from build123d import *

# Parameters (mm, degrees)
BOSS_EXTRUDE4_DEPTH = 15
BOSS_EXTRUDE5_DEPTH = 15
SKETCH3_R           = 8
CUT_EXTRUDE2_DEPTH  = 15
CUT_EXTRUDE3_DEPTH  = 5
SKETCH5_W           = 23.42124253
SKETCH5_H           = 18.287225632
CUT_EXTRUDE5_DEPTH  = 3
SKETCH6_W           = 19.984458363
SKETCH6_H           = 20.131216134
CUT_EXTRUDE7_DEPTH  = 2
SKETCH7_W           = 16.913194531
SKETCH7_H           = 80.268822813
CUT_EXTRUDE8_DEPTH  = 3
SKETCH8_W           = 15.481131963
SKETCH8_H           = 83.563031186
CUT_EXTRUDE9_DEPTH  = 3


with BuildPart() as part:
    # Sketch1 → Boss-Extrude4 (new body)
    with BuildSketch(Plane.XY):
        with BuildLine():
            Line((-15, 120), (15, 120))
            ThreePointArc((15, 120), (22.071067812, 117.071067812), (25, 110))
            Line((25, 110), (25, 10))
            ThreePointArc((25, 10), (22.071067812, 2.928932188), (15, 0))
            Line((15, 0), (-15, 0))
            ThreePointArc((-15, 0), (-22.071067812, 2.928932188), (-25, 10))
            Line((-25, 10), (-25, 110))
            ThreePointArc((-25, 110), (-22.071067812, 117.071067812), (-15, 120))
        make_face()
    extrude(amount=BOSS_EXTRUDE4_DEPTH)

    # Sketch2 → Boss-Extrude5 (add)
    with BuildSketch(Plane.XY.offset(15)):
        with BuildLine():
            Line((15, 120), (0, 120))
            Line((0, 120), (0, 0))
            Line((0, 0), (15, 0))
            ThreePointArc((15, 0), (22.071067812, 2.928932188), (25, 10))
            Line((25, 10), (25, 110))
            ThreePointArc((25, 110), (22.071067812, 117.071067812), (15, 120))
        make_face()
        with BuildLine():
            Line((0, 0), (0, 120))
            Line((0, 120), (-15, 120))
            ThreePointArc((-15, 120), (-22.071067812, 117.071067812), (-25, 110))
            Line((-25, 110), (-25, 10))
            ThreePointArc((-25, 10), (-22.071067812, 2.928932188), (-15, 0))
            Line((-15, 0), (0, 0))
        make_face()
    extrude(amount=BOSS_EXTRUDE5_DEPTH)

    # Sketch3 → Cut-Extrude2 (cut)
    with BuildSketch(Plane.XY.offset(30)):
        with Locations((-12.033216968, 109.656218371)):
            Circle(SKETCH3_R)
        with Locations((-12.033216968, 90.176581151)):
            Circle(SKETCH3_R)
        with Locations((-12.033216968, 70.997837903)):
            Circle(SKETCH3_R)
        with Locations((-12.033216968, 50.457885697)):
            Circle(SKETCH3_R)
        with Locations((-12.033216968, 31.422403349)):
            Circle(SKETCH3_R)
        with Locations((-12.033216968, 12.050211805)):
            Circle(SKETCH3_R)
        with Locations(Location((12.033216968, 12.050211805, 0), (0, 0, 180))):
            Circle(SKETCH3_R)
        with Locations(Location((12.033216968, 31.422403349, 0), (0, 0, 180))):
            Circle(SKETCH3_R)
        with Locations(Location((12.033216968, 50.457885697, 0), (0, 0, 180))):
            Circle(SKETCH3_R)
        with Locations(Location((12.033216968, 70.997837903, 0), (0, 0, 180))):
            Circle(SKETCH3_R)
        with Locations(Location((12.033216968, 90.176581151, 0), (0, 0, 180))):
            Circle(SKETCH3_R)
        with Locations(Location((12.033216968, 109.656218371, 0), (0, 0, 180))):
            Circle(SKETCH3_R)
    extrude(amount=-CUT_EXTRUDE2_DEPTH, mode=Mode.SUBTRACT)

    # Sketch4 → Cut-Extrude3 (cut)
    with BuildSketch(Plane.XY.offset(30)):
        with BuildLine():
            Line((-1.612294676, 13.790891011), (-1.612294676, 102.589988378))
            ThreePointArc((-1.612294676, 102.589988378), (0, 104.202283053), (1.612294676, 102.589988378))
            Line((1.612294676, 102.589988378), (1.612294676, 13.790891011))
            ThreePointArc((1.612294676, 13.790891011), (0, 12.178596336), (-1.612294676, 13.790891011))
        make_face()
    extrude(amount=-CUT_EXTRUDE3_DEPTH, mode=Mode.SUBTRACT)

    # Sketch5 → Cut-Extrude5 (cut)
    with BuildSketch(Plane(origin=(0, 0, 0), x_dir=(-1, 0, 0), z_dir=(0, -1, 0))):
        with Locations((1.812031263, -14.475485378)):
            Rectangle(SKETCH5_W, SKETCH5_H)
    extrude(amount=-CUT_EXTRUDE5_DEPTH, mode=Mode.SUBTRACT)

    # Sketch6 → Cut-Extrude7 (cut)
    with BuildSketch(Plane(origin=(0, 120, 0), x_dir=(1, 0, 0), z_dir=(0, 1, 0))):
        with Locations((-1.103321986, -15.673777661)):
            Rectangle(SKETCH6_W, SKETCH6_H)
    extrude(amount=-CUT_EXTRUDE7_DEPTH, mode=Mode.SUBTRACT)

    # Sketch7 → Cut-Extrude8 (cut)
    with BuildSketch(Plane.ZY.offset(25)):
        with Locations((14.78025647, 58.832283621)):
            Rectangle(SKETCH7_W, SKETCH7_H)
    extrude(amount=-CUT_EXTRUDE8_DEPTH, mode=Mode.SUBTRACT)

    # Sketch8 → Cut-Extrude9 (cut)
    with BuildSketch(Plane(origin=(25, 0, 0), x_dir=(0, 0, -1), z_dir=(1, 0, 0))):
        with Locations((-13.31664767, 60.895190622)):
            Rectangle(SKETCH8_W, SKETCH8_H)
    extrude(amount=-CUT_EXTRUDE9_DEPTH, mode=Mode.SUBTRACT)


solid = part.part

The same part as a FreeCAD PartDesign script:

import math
import FreeCAD as App
import Part
import Sketcher
from FreeCAD import Vector
Q = App.Units.Quantity


def add_polygon(sketch, points):
    """Adds a closed chain of lines whose ends are joined by coincident constraints."""
    first, n = sketch.GeometryCount, len(points)
    for a, b in zip(points, points[1:] + points[:1]):
        sketch.addGeometry(Part.LineSegment(App.Vector(*a, 0), App.Vector(*b, 0)), False)
    for i in range(n):
        sketch.addConstraint(Sketcher.Constraint("Coincident", first + i, 2, first + (i + 1) % n, 1))

doc = App.newDocument("Part")
params = doc.addObject("Spreadsheet::Sheet", "Params")
for row, (alias, value) in enumerate([
    ("sketch1_radius", "10 mm"),
    ("sketch1_width", "30 mm"),
    ("sketch1_height", "100 mm"),
    ("pad1_length", "15 mm"),
    ("sketch2_radius", "10 mm"),
    ("sketch2_width", "30 mm"),
    ("sketch2_height", "100 mm"),
    ("pad2_length", "15 mm"),
    ("sketch3_diameter", "16 mm"),
    ("pocket1_length", "15 mm"),
    ("pocket2_length", "5 mm"),
    ("pocket3_length", "3 mm"),
    ("pocket4_length", "2 mm"),
    ("pocket5_length", "3 mm"),
    ("pocket6_length", "3 mm"),
], start=1):
    params.set(f"A{row}", alias)
    params.set(f"B{row}", "=" + value)
    params.setAlias(f"B{row}", alias)

body = doc.addObject("PartDesign::Body", "Body")

sketch1 = doc.addObject("Sketcher::SketchObject", "Sketch")
body.addObject(sketch1)
sketch1.AttachmentSupport = (doc.XY_Plane, [""])
sketch1.MapMode = "FlatFace"
sketch1.addGeometry(Part.LineSegment(Vector(15, 120, 0), Vector(-15, 120, 0)), False)
sketch1.addGeometry(Part.ArcOfCircle(Part.Circle(Vector(-15, 110, 0), Vector(0, 0, 1), 10), math.radians(90), math.radians(180)), False)
sketch1.addGeometry(Part.LineSegment(Vector(-25, 110, 0), Vector(-25, 10, 0)), False)
sketch1.addGeometry(Part.ArcOfCircle(Part.Circle(Vector(-15, 10, 0), Vector(0, 0, 1), 10), math.radians(180), math.radians(270)), False)
sketch1.addGeometry(Part.LineSegment(Vector(-15, 0, 0), Vector(15, 0, 0)), False)
sketch1.addGeometry(Part.ArcOfCircle(Part.Circle(Vector(15, 10, 0), Vector(0, 0, 1), 10), math.radians(-90), math.radians(0)), False)
sketch1.addGeometry(Part.LineSegment(Vector(25, 10, 0), Vector(25, 110, 0)), False)
sketch1.addGeometry(Part.ArcOfCircle(Part.Circle(Vector(15, 110, 0), Vector(0, 0, 1), 10), math.radians(0), math.radians(90)), False)
sketch1.addConstraint(Sketcher.Constraint("Tangent", 0, 2, 1, 1))
sketch1.addConstraint(Sketcher.Constraint("Tangent", 1, 2, 2, 1))
sketch1.addConstraint(Sketcher.Constraint("Tangent", 2, 2, 3, 1))
sketch1.addConstraint(Sketcher.Constraint("Tangent", 3, 2, 4, 1))
sketch1.addConstraint(Sketcher.Constraint("Tangent", 4, 2, 5, 1))
sketch1.addConstraint(Sketcher.Constraint("Tangent", 5, 2, 6, 1))
sketch1.addConstraint(Sketcher.Constraint("Tangent", 6, 2, 7, 1))
sketch1.addConstraint(Sketcher.Constraint("Tangent", 7, 2, 0, 1))
sketch1.addConstraint(Sketcher.Constraint("Horizontal", 0))
sketch1.addConstraint(Sketcher.Constraint("Vertical", 2))
sketch1.addConstraint(Sketcher.Constraint("Horizontal", 4))
sketch1.addConstraint(Sketcher.Constraint("Vertical", 6))
sketch1.addConstraint(Sketcher.Constraint("Equal", 1, 3))
sketch1.addConstraint(Sketcher.Constraint("Equal", 3, 5))
sketch1.addConstraint(Sketcher.Constraint("Equal", 5, 7))
sketch1.addConstraint(Sketcher.Constraint("Symmetric", 3, 2, 4, 2, -1, 1))
sketch1.addConstraint(Sketcher.Constraint("Radius", 1, Q("10 mm")))
sketch1.addConstraint(Sketcher.Constraint("DistanceX", 0, 2, 0, 1, Q("30 mm")))
sketch1.addConstraint(Sketcher.Constraint("DistanceY", 2, 2, 2, 1, Q("100 mm")))
sketch1.setExpression("Constraints[16]", "Params.sketch1_radius")
sketch1.setExpression("Constraints[17]", "Params.sketch1_width")
sketch1.setExpression("Constraints[18]", "Params.sketch1_height")
pad1 = doc.addObject("PartDesign::Pad", "Pad")
body.addObject(pad1)
pad1.Profile = sketch1
pad1.setExpression("Length", "Params.pad1_length")

sketch2 = doc.addObject("Sketcher::SketchObject", "Sketch001")
body.addObject(sketch2)
sketch2.AttachmentSupport = (doc.XY_Plane, [""])
sketch2.MapMode = "FlatFace"
sketch2.AttachmentOffset = App.Placement(Vector(0, 0, 15), App.Rotation())
sketch2.addGeometry(Part.LineSegment(Vector(15, 120, 0), Vector(-15, 120, 0)), False)
sketch2.addGeometry(Part.ArcOfCircle(Part.Circle(Vector(-15, 110, 0), Vector(0, 0, 1), 10), math.radians(90), math.radians(180)), False)
sketch2.addGeometry(Part.LineSegment(Vector(-25, 110, 0), Vector(-25, 10, 0)), False)
sketch2.addGeometry(Part.ArcOfCircle(Part.Circle(Vector(-15, 10, 0), Vector(0, 0, 1), 10), math.radians(180), math.radians(270)), False)
sketch2.addGeometry(Part.LineSegment(Vector(-15, 0, 0), Vector(15, 0, 0)), False)
sketch2.addGeometry(Part.ArcOfCircle(Part.Circle(Vector(15, 10, 0), Vector(0, 0, 1), 10), math.radians(-90), math.radians(0)), False)
sketch2.addGeometry(Part.LineSegment(Vector(25, 10, 0), Vector(25, 110, 0)), False)
sketch2.addGeometry(Part.ArcOfCircle(Part.Circle(Vector(15, 110, 0), Vector(0, 0, 1), 10), math.radians(0), math.radians(90)), False)
sketch2.addConstraint(Sketcher.Constraint("Tangent", 0, 2, 1, 1))
sketch2.addConstraint(Sketcher.Constraint("Tangent", 1, 2, 2, 1))
sketch2.addConstraint(Sketcher.Constraint("Tangent", 2, 2, 3, 1))
sketch2.addConstraint(Sketcher.Constraint("Tangent", 3, 2, 4, 1))
sketch2.addConstraint(Sketcher.Constraint("Tangent", 4, 2, 5, 1))
sketch2.addConstraint(Sketcher.Constraint("Tangent", 5, 2, 6, 1))
sketch2.addConstraint(Sketcher.Constraint("Tangent", 6, 2, 7, 1))
sketch2.addConstraint(Sketcher.Constraint("Tangent", 7, 2, 0, 1))
sketch2.addConstraint(Sketcher.Constraint("Horizontal", 0))
sketch2.addConstraint(Sketcher.Constraint("Vertical", 2))
sketch2.addConstraint(Sketcher.Constraint("Horizontal", 4))
sketch2.addConstraint(Sketcher.Constraint("Vertical", 6))
sketch2.addConstraint(Sketcher.Constraint("Equal", 1, 3))
sketch2.addConstraint(Sketcher.Constraint("Equal", 3, 5))
sketch2.addConstraint(Sketcher.Constraint("Equal", 5, 7))
sketch2.addConstraint(Sketcher.Constraint("Symmetric", 3, 2, 4, 2, -1, 1))
sketch2.addConstraint(Sketcher.Constraint("Radius", 1, Q("10 mm")))
sketch2.addConstraint(Sketcher.Constraint("DistanceX", 0, 2, 0, 1, Q("30 mm")))
sketch2.addConstraint(Sketcher.Constraint("DistanceY", 2, 2, 2, 1, Q("100 mm")))
sketch2.setExpression("Constraints[16]", "Params.sketch2_radius")
sketch2.setExpression("Constraints[17]", "Params.sketch2_width")
sketch2.setExpression("Constraints[18]", "Params.sketch2_height")
pad2 = doc.addObject("PartDesign::Pad", "Pad001")
body.addObject(pad2)
pad2.Profile = sketch2
pad2.setExpression("Length", "Params.pad2_length")

sketch3 = doc.addObject("Sketcher::SketchObject", "Sketch002")
body.addObject(sketch3)
sketch3.AttachmentSupport = (doc.XY_Plane, [""])
sketch3.MapMode = "FlatFace"
sketch3.AttachmentOffset = App.Placement(Vector(0, 0, 30), App.Rotation())
sketch3.addGeometry(Part.Circle(Vector(-12, 110, 0), Vector(0, 0, 1), 8), False)
sketch3.addGeometry(Part.Circle(Vector(-12, 90, 0), Vector(0, 0, 1), 8), False)
sketch3.addGeometry(Part.Circle(Vector(-12, 71, 0), Vector(0, 0, 1), 8), False)
sketch3.addGeometry(Part.Circle(Vector(-12, 50, 0), Vector(0, 0, 1), 8), False)
sketch3.addGeometry(Part.Circle(Vector(-12, 31, 0), Vector(0, 0, 1), 8), False)
sketch3.addGeometry(Part.Circle(Vector(-12, 12, 0), Vector(0, 0, 1), 8), False)
sketch3.addGeometry(Part.Circle(Vector(12, 12, 0), Vector(0, 0, 1), 8), False)
sketch3.addGeometry(Part.Circle(Vector(12, 31, 0), Vector(0, 0, 1), 8), False)
sketch3.addGeometry(Part.Circle(Vector(12, 50, 0), Vector(0, 0, 1), 8), False)
sketch3.addGeometry(Part.Circle(Vector(12, 71, 0), Vector(0, 0, 1), 8), False)
sketch3.addGeometry(Part.Circle(Vector(12, 90, 0), Vector(0, 0, 1), 8), False)
sketch3.addGeometry(Part.Circle(Vector(12, 110, 0), Vector(0, 0, 1), 8), False)
sketch3.addConstraint(Sketcher.Constraint("Equal", 0, 1))
sketch3.addConstraint(Sketcher.Constraint("Equal", 1, 2))
sketch3.addConstraint(Sketcher.Constraint("Equal", 2, 3))
sketch3.addConstraint(Sketcher.Constraint("Equal", 3, 4))
sketch3.addConstraint(Sketcher.Constraint("Equal", 4, 5))
sketch3.addConstraint(Sketcher.Constraint("Equal", 5, 6))
sketch3.addConstraint(Sketcher.Constraint("Equal", 6, 7))
sketch3.addConstraint(Sketcher.Constraint("Equal", 7, 8))
sketch3.addConstraint(Sketcher.Constraint("Equal", 8, 9))
sketch3.addConstraint(Sketcher.Constraint("Equal", 9, 10))
sketch3.addConstraint(Sketcher.Constraint("Equal", 10, 11))
sketch3.addConstraint(Sketcher.Constraint("Symmetric", 5, 3, 6, 3, -2))
sketch3.addConstraint(Sketcher.Constraint("Symmetric", 4, 3, 7, 3, -2))
sketch3.addConstraint(Sketcher.Constraint("Symmetric", 3, 3, 8, 3, -2))
sketch3.addConstraint(Sketcher.Constraint("Symmetric", 2, 3, 9, 3, -2))
sketch3.addConstraint(Sketcher.Constraint("Symmetric", 1, 3, 10, 3, -2))
sketch3.addConstraint(Sketcher.Constraint("Symmetric", 0, 3, 11, 3, -2))
sketch3.addConstraint(Sketcher.Constraint("Vertical", 0, 3, 1, 3))
sketch3.addConstraint(Sketcher.Constraint("Vertical", 1, 3, 2, 3))
sketch3.addConstraint(Sketcher.Constraint("Vertical", 2, 3, 3, 3))
sketch3.addConstraint(Sketcher.Constraint("Vertical", 3, 3, 4, 3))
sketch3.addConstraint(Sketcher.Constraint("Vertical", 4, 3, 5, 3))
sketch3.addConstraint(Sketcher.Constraint("Diameter", 0, Q("16 mm")))
sketch3.addConstraint(Sketcher.Constraint("DistanceY", -1, 1, 0, 3, Q("109.656218 mm")))
sketch3.addConstraint(Sketcher.Constraint("DistanceY", -1, 1, 1, 3, Q("90.176581 mm")))
sketch3.addConstraint(Sketcher.Constraint("DistanceY", -1, 1, 5, 3, Q("12.050212 mm")))
sketch3.addConstraint(Sketcher.Constraint("DistanceY", 2, 3, 0, 3, Q("38.65838 mm")))
sketch3.addConstraint(Sketcher.Constraint("DistanceY", 5, 3, 4, 3, Q("19.372192 mm")))
sketch3.addConstraint(Sketcher.Constraint("DistanceX", 0, 3, -1, 1, Q("12.033217 mm")))
sketch3.addConstraint(Sketcher.Constraint("DistanceY", -1, 1, 3, 3, Q("50.457886 mm")))
sketch3.setExpression("Constraints[22]", "Params.sketch3_diameter")
pocket1 = doc.addObject("PartDesign::Pocket", "Pocket")
body.addObject(pocket1)
pocket1.Profile = sketch3
pocket1.setExpression("Length", "Params.pocket1_length")

sketch4 = doc.addObject("Sketcher::SketchObject", "Sketch003")
body.addObject(sketch4)
sketch4.AttachmentSupport = (doc.XY_Plane, [""])
sketch4.MapMode = "FlatFace"
sketch4.AttachmentOffset = App.Placement(Vector(0, 0, 30), App.Rotation())
sketch4.addGeometry(Part.LineSegment(Vector(-1.6, 102.6, 0), Vector(-1.6, 13.8, 0)), False)
sketch4.addGeometry(Part.ArcOfCircle(Part.Circle(Vector(0, 13.8, 0), Vector(0, 0, 1), 1.6), math.radians(-180), math.radians(0)), False)
sketch4.addGeometry(Part.LineSegment(Vector(1.6, 13.8, 0), Vector(1.6, 102.6, 0)), False)
sketch4.addGeometry(Part.ArcOfCircle(Part.Circle(Vector(0, 102.6, 0), Vector(0, 0, 1), 1.6), math.radians(0), math.radians(180)), False)
sketch4.addConstraint(Sketcher.Constraint("Tangent", 0, 2, 1, 1))
sketch4.addConstraint(Sketcher.Constraint("Tangent", 1, 2, 2, 1))
sketch4.addConstraint(Sketcher.Constraint("Tangent", 2, 2, 3, 1))
sketch4.addConstraint(Sketcher.Constraint("Tangent", 3, 2, 0, 1))
sketch4.addConstraint(Sketcher.Constraint("Vertical", 0))
sketch4.addConstraint(Sketcher.Constraint("Vertical", 2))
sketch4.addConstraint(Sketcher.Constraint("PointOnObject", 1, 3, -2))
sketch4.addConstraint(Sketcher.Constraint("Radius", 1, Q("1.612295 mm")))
sketch4.addConstraint(Sketcher.Constraint("DistanceY", 0, 2, 0, 1, Q("88.799097 mm")))
sketch4.addConstraint(Sketcher.Constraint("DistanceY", -1, 1, 1, 3, Q("13.790891 mm")))
pocket2 = doc.addObject("PartDesign::Pocket", "Pocket001")
body.addObject(pocket2)
pocket2.Profile = sketch4
pocket2.setExpression("Length", "Params.pocket2_length")

sketch5 = doc.addObject("Sketcher::SketchObject", "Sketch004")
body.addObject(sketch5)
sketch5.AttachmentSupport = (doc.XZ_Plane, [""])
sketch5.MapMode = "FlatFace"
add_polygon(sketch5, [(10, 5), (10, 24), (-14, 24), (-14, 5)])
sketch5.addConstraint(Sketcher.Constraint("Vertical", 0))
sketch5.addConstraint(Sketcher.Constraint("Horizontal", 1))
sketch5.addConstraint(Sketcher.Constraint("Vertical", 2))
sketch5.addConstraint(Sketcher.Constraint("Horizontal", 3))
sketch5.addConstraint(Sketcher.Constraint("DistanceY", -1, 1, 0, 2, Q("23.619098 mm")))
sketch5.addConstraint(Sketcher.Constraint("DistanceX", 1, 2, 1, 1, Q("23.421243 mm")))
sketch5.addConstraint(Sketcher.Constraint("DistanceY", 0, 1, 0, 2, Q("18.287226 mm")))
sketch5.addConstraint(Sketcher.Constraint("DistanceX", -1, 1, 0, 2, Q("9.89859 mm")))
pocket3 = doc.addObject("PartDesign::Pocket", "Pocket002")
body.addObject(pocket3)
pocket3.Profile = sketch5
pocket3.setExpression("Length", "Params.pocket3_length")

sketch6 = doc.addObject("Sketcher::SketchObject", "Sketch005")
body.addObject(sketch6)
sketch6.AttachmentSupport = (doc.XZ_Plane, [""])
sketch6.MapMode = "FlatFace"
sketch6.AttachmentOffset = App.Placement(Vector(0, 0, -120), App.Rotation())
add_polygon(sketch6, [(-11, 6), (-11, 26), (9, 26), (9, 6)])
sketch6.addConstraint(Sketcher.Constraint("Vertical", 0))
sketch6.addConstraint(Sketcher.Constraint("Horizontal", 1))
sketch6.addConstraint(Sketcher.Constraint("Vertical", 2))
sketch6.addConstraint(Sketcher.Constraint("Horizontal", 3))
sketch6.addConstraint(Sketcher.Constraint("DistanceX", 1, 1, 1, 2, Q("19.984458 mm")))
sketch6.addConstraint(Sketcher.Constraint("DistanceY", 0, 1, 0, 2, Q("20.131216 mm")))
sketch6.addConstraint(Sketcher.Constraint("DistanceX", 0, 2, -1, 1, Q("11.095551 mm")))
sketch6.addConstraint(Sketcher.Constraint("DistanceY", -1, 1, 2, 2, Q("5.60817 mm")))
pocket4 = doc.addObject("PartDesign::Pocket", "Pocket003")
body.addObject(pocket4)
pocket4.Profile = sketch6
pocket4.setExpression("Length", "Params.pocket4_length")
pocket4.Reversed = True

sketch7 = doc.addObject("Sketcher::SketchObject", "Sketch006")
body.addObject(sketch7)
sketch7.AttachmentSupport = (doc.YZ_Plane, [""])
sketch7.MapMode = "FlatFace"
sketch7.AttachmentOffset = App.Placement(Vector(0, 0, -25), App.Rotation())
add_polygon(sketch7, [(99, 6), (19, 6), (19, 23), (99, 23)])
sketch7.addConstraint(Sketcher.Constraint("Horizontal", 0))
sketch7.addConstraint(Sketcher.Constraint("Vertical", 1))
sketch7.addConstraint(Sketcher.Constraint("Horizontal", 2))
sketch7.addConstraint(Sketcher.Constraint("Vertical", 3))
sketch7.addConstraint(Sketcher.Constraint("DistanceX", 0, 2, 0, 1, Q("80.268823 mm")))
sketch7.addConstraint(Sketcher.Constraint("DistanceY", 1, 1, 1, 2, Q("16.913195 mm")))
sketch7.addConstraint(Sketcher.Constraint("DistanceY", -1, 1, 0, 2, Q("6.323659 mm")))
sketch7.addConstraint(Sketcher.Constraint("DistanceX", -1, 1, 0, 2, Q("18.697872 mm")))
pocket5 = doc.addObject("PartDesign::Pocket", "Pocket004")
body.addObject(pocket5)
pocket5.Profile = sketch7
pocket5.setExpression("Length", "Params.pocket5_length")
pocket5.Reversed = True

sketch8 = doc.addObject("Sketcher::SketchObject", "Sketch007")
body.addObject(sketch8)
sketch8.AttachmentSupport = (doc.YZ_Plane, [""])
sketch8.MapMode = "FlatFace"
sketch8.AttachmentOffset = App.Placement(Vector(0, 0, 25), App.Rotation())
add_polygon(sketch8, [(103, 21), (19, 21), (19, 6), (103, 6)])
sketch8.addConstraint(Sketcher.Constraint("Horizontal", 0))
sketch8.addConstraint(Sketcher.Constraint("Vertical", 1))
sketch8.addConstraint(Sketcher.Constraint("Horizontal", 2))
sketch8.addConstraint(Sketcher.Constraint("Vertical", 3))
sketch8.addConstraint(Sketcher.Constraint("DistanceX", 0, 2, 0, 1, Q("83.563031 mm")))
sketch8.addConstraint(Sketcher.Constraint("DistanceY", 1, 2, 1, 1, Q("15.481132 mm")))
sketch8.addConstraint(Sketcher.Constraint("DistanceY", -1, 1, 1, 2, Q("5.576082 mm")))
sketch8.addConstraint(Sketcher.Constraint("DistanceX", -1, 1, 0, 2, Q("19.113675 mm")))
pocket6 = doc.addObject("PartDesign::Pocket", "Pocket005")
body.addObject(pocket6)
pocket6.Profile = sketch8
pocket6.setExpression("Length", "Params.pocket6_length")

doc.recompute()
